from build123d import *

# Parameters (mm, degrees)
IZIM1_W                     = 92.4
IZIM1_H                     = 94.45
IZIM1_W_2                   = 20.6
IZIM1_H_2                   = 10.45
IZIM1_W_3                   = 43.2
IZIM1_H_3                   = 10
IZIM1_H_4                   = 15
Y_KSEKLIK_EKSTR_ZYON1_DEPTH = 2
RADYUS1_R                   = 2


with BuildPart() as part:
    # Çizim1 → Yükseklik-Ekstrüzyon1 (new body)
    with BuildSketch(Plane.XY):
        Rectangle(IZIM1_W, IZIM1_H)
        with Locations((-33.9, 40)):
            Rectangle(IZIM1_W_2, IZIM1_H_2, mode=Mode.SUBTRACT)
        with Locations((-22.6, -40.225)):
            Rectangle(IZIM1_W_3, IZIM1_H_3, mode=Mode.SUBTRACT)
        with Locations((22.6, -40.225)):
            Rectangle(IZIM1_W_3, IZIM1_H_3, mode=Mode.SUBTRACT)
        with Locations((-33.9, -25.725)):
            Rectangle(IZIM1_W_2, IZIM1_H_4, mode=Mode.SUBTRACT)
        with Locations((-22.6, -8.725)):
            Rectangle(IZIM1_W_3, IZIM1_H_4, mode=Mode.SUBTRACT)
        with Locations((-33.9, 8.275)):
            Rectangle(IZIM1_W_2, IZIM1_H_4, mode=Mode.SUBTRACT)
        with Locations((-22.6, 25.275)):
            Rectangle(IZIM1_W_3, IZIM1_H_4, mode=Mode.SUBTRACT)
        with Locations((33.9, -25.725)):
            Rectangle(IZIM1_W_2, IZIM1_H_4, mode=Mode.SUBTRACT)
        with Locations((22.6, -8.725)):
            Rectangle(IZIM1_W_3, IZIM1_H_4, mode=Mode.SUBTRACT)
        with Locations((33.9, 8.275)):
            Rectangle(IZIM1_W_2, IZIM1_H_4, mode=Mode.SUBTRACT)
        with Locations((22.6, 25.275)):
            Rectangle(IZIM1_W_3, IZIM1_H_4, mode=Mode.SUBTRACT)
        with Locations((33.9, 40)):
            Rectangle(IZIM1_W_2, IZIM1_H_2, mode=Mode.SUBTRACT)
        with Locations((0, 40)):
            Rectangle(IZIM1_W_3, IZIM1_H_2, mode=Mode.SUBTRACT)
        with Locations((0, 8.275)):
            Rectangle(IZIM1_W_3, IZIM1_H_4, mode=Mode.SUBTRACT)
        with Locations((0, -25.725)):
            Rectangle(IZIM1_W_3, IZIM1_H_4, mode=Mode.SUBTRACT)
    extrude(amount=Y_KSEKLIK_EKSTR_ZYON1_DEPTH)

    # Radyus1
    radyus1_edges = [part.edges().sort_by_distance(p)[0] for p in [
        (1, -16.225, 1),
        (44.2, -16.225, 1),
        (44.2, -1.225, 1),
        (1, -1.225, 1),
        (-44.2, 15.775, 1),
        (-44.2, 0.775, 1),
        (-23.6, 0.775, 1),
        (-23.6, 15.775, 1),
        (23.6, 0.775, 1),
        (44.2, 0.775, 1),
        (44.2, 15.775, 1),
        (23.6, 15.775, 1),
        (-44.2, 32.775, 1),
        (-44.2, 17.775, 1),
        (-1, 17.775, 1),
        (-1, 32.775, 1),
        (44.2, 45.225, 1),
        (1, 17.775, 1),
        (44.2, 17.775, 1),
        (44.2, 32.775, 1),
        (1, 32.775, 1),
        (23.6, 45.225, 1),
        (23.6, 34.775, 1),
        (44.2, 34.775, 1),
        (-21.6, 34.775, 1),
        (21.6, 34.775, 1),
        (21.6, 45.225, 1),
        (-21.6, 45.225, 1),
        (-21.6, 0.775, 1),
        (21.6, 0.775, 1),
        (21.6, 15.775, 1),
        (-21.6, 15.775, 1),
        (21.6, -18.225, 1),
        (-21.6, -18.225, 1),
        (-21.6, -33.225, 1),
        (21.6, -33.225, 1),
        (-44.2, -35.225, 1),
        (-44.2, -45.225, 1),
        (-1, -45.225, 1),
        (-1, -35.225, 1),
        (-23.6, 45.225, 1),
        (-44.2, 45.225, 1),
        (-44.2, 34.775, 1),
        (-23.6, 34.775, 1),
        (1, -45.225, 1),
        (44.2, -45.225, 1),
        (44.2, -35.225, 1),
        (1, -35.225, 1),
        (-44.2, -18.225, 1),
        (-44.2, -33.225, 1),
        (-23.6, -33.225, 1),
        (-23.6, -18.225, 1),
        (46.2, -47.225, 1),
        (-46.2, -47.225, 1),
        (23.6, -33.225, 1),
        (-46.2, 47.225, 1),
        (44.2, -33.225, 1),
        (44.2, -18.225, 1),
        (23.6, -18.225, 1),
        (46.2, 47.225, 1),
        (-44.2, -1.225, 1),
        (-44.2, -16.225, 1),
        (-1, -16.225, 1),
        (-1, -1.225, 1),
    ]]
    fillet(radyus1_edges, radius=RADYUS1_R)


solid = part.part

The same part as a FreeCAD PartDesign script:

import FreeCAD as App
import Part
import Sketcher


def edges_at(feature, points):
    """Names of the edges that pass closest to the given points."""
    edges = feature.Shape.Edges
    near = lambda p: min(range(len(edges)), key=lambda i: edges[i].distToShape(Part.Vertex(*p))[0])
    return sorted({f"Edge{near(p) + 1}" for p in points})

doc = App.newDocument("Part")
body = doc.addObject("PartDesign::Body", "Body")

# Sketch on XY plane
sketch1 = body.newObject("Sketcher::SketchObject", "Sketch")
sketch1.AttachmentSupport = (doc.getObject("XY_Plane"), [""])
sketch1.MapMode = "FlatFace"
sketch1.addGeometry([
    Part.LineSegment(App.Vector(-46, 47, 0), App.Vector(-46, -47, 0)),  # 0
    Part.LineSegment(App.Vector(-46, -47, 0), App.Vector(46, -47, 0)),  # 1
    Part.LineSegment(App.Vector(46, -47, 0), App.Vector(46, 47, 0)),  # 2
    Part.LineSegment(App.Vector(46, 47, 0), App.Vector(-46, 47, 0)),  # 3
    Part.LineSegment(App.Vector(-1, -45, 0), App.Vector(-44, -45, 0)),  # 4
    Part.LineSegment(App.Vector(-44, -45, 0), App.Vector(-44, -35, 0)),  # 5
    Part.LineSegment(App.Vector(-44, -35, 0), App.Vector(-1, -35, 0)),  # 6
    Part.LineSegment(App.Vector(-1, -35, 0), App.Vector(-1, -45, 0)),  # 7
    Part.LineSegment(App.Vector(-24, -33, 0), App.Vector(-44, -33, 0)),  # 8
    Part.LineSegment(App.Vector(-44, -33, 0), App.Vector(-44, -18, 0)),  # 9
    Part.LineSegment(App.Vector(-44, -18, 0), App.Vector(-24, -18, 0)),  # 10
    Part.LineSegment(App.Vector(-24, -18, 0), App.Vector(-24, -33, 0)),  # 11
    Part.LineSegment(App.Vector(-1, -16, 0), App.Vector(-44, -16, 0)),  # 12
    Part.LineSegment(App.Vector(-44, -16, 0), App.Vector(-44, -1, 0)),  # 13
    Part.LineSegment(App.Vector(-44, -1, 0), App.Vector(-1, -1, 0)),  # 14
    Part.LineSegment(App.Vector(-1, -1, 0), App.Vector(-1, -16, 0)),  # 15
    Part.LineSegment(App.Vector(22, -33, 0), App.Vector(-22, -33, 0)),  # 16
    Part.LineSegment(App.Vector(-22, -33, 0), App.Vector(-22, -18, 0)),  # 17
    Part.LineSegment(App.Vector(-22, -18, 0), App.Vector(22, -18, 0)),  # 18
    Part.LineSegment(App.Vector(22, -18, 0), App.Vector(22, -33, 0)),  # 19
    Part.LineSegment(App.Vector(44, -45, 0), App.Vector(1, -45, 0)),  # 20
    Part.LineSegment(App.Vector(1, -45, 0), App.Vector(1, -35, 0)),  # 21
    Part.LineSegment(App.Vector(1, -35, 0), App.Vector(44, -35, 0)),  # 22
    Part.LineSegment(App.Vector(44, -35, 0), App.Vector(44, -45, 0)),  # 23
    Part.LineSegment(App.Vector(44, -33, 0), App.Vector(24, -33, 0)),  # 24
    Part.LineSegment(App.Vector(24, -33, 0), App.Vector(24, -18, 0)),  # 25
    Part.LineSegment(App.Vector(24, -18, 0), App.Vector(44, -18, 0)),  # 26
    Part.LineSegment(App.Vector(44, -18, 0), App.Vector(44, -33, 0)),  # 27
    Part.LineSegment(App.Vector(44, -16, 0), App.Vector(1, -16, 0)),  # 28
    Part.LineSegment(App.Vector(1, -16, 0), App.Vector(1, -1, 0)),  # 29
    Part.LineSegment(App.Vector(1, -1, 0), App.Vector(44, -1, 0)),  # 30
    Part.LineSegment(App.Vector(44, -1, 0), App.Vector(44, -16, 0)),  # 31
    Part.LineSegment(App.Vector(-24, 1, 0), App.Vector(-44, 1, 0)),  # 32
    Part.LineSegment(App.Vector(-44, 1, 0), App.Vector(-44, 16, 0)),  # 33
    Part.LineSegment(App.Vector(-44, 16, 0), App.Vector(-24, 16, 0)),  # 34
    Part.LineSegment(App.Vector(-24, 16, 0), App.Vector(-24, 1, 0)),  # 35
    Part.LineSegment(App.Vector(-1, 18, 0), App.Vector(-44, 18, 0)),  # 36
    Part.LineSegment(App.Vector(-44, 18, 0), App.Vector(-44, 33, 0)),  # 37
    Part.LineSegment(App.Vector(-44, 33, 0), App.Vector(-1, 33, 0)),  # 38
    Part.LineSegment(App.Vector(-1, 33, 0), App.Vector(-1, 18, 0)),  # 39
    Part.LineSegment(App.Vector(-24, 35, 0), App.Vector(-44, 35, 0)),  # 40
    Part.LineSegment(App.Vector(-44, 35, 0), App.Vector(-44, 45, 0)),  # 41
    Part.LineSegment(App.Vector(-44, 45, 0), App.Vector(-24, 45, 0)),  # 42
    Part.LineSegment(App.Vector(-24, 45, 0), App.Vector(-24, 35, 0)),  # 43
    Part.LineSegment(App.Vector(22, 1, 0), App.Vector(-22, 1, 0)),  # 44
    Part.LineSegment(App.Vector(-22, 1, 0), App.Vector(-22, 16, 0)),  # 45
    Part.LineSegment(App.Vector(-22, 16, 0), App.Vector(22, 16, 0)),  # 46
    Part.LineSegment(App.Vector(22, 16, 0), App.Vector(22, 1, 0)),  # 47
    Part.LineSegment(App.Vector(44, 1, 0), App.Vector(24, 1, 0)),  # 48
    Part.LineSegment(App.Vector(24, 1, 0), App.Vector(24, 16, 0)),  # 49
    Part.LineSegment(App.Vector(24, 16, 0), App.Vector(44, 16, 0)),  # 50
    Part.LineSegment(App.Vector(44, 16, 0), App.Vector(44, 1, 0)),  # 51
    Part.LineSegment(App.Vector(22, 35, 0), App.Vector(-22, 35, 0)),  # 52
    Part.LineSegment(App.Vector(-22, 35, 0), App.Vector(-22, 45, 0)),  # 53
    Part.LineSegment(App.Vector(-22, 45, 0), App.Vector(22, 45, 0)),  # 54
    Part.LineSegment(App.Vector(22, 45, 0), App.Vector(22, 35, 0)),  # 55
    Part.LineSegment(App.Vector(44, 18, 0), App.Vector(1, 18, 0)),  # 56
    Part.LineSegment(App.Vector(1, 18, 0), App.Vector(1, 33, 0)),  # 57
    Part.LineSegment(App.Vector(1, 33, 0), App.Vector(44, 33, 0)),  # 58
    Part.LineSegment(App.Vector(44, 33, 0), App.Vector(44, 18, 0)),  # 59
    Part.LineSegment(App.Vector(44, 35, 0), App.Vector(24, 35, 0)),  # 60
    Part.LineSegment(App.Vector(24, 35, 0), App.Vector(24, 45, 0)),  # 61
    Part.LineSegment(App.Vector(24, 45, 0), App.Vector(44, 45, 0)),  # 62
    Part.LineSegment(App.Vector(44, 45, 0), App.Vector(44, 35, 0)),  # 63
], False)
sketch1.addConstraint([
    Sketcher.Constraint("Coincident", 0, 2, 1, 1),
    Sketcher.Constraint("Coincident", 1, 2, 2, 1),
    Sketcher.Constraint("Coincident", 2, 2, 3, 1),
    Sketcher.Constraint("Coincident", 3, 2, 0, 1),
    Sketcher.Constraint("Coincident", 4, 2, 5, 1),
    Sketcher.Constraint("Coincident", 5, 2, 6, 1),
    Sketcher.Constraint("Coincident", 6, 2, 7, 1),
    Sketcher.Constraint("Coincident", 7, 2, 4, 1),
    Sketcher.Constraint("Coincident", 8, 2, 9, 1),
    Sketcher.Constraint("Coincident", 9, 2, 10, 1),
    Sketcher.Constraint("Coincident", 10, 2, 11, 1),
    Sketcher.Constraint("Coincident", 11, 2, 8, 1),
    Sketcher.Constraint("Coincident", 12, 2, 13, 1),
    Sketcher.Constraint("Coincident", 13, 2, 14, 1),
    Sketcher.Constraint("Coincident", 14, 2, 15, 1),
    Sketcher.Constraint("Coincident", 15, 2, 12, 1),
    Sketcher.Constraint("Coincident", 16, 2, 17, 1),
    Sketcher.Constraint("Coincident", 17, 2, 18, 1),
    Sketcher.Constraint("Coincident", 18, 2, 19, 1),
    Sketcher.Constraint("Coincident", 19, 2, 16, 1),
    Sketcher.Constraint("Coincident", 20, 2, 21, 1),
    Sketcher.Constraint("Coincident", 21, 2, 22, 1),
    Sketcher.Constraint("Coincident", 22, 2, 23, 1),
    Sketcher.Constraint("Coincident", 23, 2, 20, 1),
    Sketcher.Constraint("Coincident", 24, 2, 25, 1),
    Sketcher.Constraint("Coincident", 25, 2, 26, 1),
    Sketcher.Constraint("Coincident", 26, 2, 27, 1),
    Sketcher.Constraint("Coincident", 27, 2, 24, 1),
    Sketcher.Constraint("Coincident", 28, 2, 29, 1),
    Sketcher.Constraint("Coincident", 29, 2, 30, 1),
    Sketcher.Constraint("Coincident", 30, 2, 31, 1),
    Sketcher.Constraint("Coincident", 31, 2, 28, 1),
    Sketcher.Constraint("Coincident", 32, 2, 33, 1),
    Sketcher.Constraint("Coincident", 33, 2, 34, 1),
    Sketcher.Constraint("Coincident", 34, 2, 35, 1),
    Sketcher.Constraint("Coincident", 35, 2, 32, 1),
    Sketcher.Constraint("Coincident", 36, 2, 37, 1),
    Sketcher.Constraint("Coincident", 37, 2, 38, 1),
    Sketcher.Constraint("Coincident", 38, 2, 39, 1),
    Sketcher.Constraint("Coincident", 39, 2, 36, 1),
    Sketcher.Constraint("Coincident", 40, 2, 41, 1),
    Sketcher.Constraint("Coincident", 41, 2, 42, 1),
    Sketcher.Constraint("Coincident", 42, 2, 43, 1),
    Sketcher.Constraint("Coincident", 43, 2, 40, 1),
    Sketcher.Constraint("Coincident", 44, 2, 45, 1),
    Sketcher.Constraint("Coincident", 45, 2, 46, 1),
    Sketcher.Constraint("Coincident", 46, 2, 47, 1),
    Sketcher.Constraint("Coincident", 47, 2, 44, 1),
    Sketcher.Constraint("Coincident", 48, 2, 49, 1),
    Sketcher.Constraint("Coincident", 49, 2, 50, 1),
    Sketcher.Constraint("Coincident", 50, 2, 51, 1),
    Sketcher.Constraint("Coincident", 51, 2, 48, 1),
    Sketcher.Constraint("Coincident", 52, 2, 53, 1),
    Sketcher.Constraint("Coincident", 53, 2, 54, 1),
    Sketcher.Constraint("Coincident", 54, 2, 55, 1),
    Sketcher.Constraint("Coincident", 55, 2, 52, 1),
    Sketcher.Constraint("Coincident", 56, 2, 57, 1),
    Sketcher.Constraint("Coincident", 57, 2, 58, 1),
    Sketcher.Constraint("Coincident", 58, 2, 59, 1),
    Sketcher.Constraint("Coincident", 59, 2, 56, 1),
    Sketcher.Constraint("Coincident", 60, 2, 61, 1),
    Sketcher.Constraint("Coincident", 61, 2, 62, 1),
    Sketcher.Constraint("Coincident", 62, 2, 63, 1),
    Sketcher.Constraint("Coincident", 63, 2, 60, 1),
    Sketcher.Constraint("Vertical", 0),
    Sketcher.Constraint("Horizontal", 1),
    Sketcher.Constraint("Vertical", 2),
    Sketcher.Constraint("Horizontal", 3),
    Sketcher.Constraint("Horizontal", 4),
    Sketcher.Constraint("Vertical", 5),
    Sketcher.Constraint("Horizontal", 6),
    Sketcher.Constraint("Vertical", 7),
    Sketcher.Constraint("Horizontal", 8),
    Sketcher.Constraint("Vertical", 9),
    Sketcher.Constraint("Horizontal", 10),
    Sketcher.Constraint("Vertical", 11),
    Sketcher.Constraint("Horizontal", 12),
    Sketcher.Constraint("Vertical", 13),
    Sketcher.Constraint("Horizontal", 14),
    Sketcher.Constraint("Vertical", 15),
    Sketcher.Constraint("Horizontal", 16),
    Sketcher.Constraint("Vertical", 17),
    Sketcher.Constraint("Horizontal", 18),
    Sketcher.Constraint("Vertical", 19),
    Sketcher.Constraint("Horizontal", 20),
    Sketcher.Constraint("Vertical", 21),
    Sketcher.Constraint("Horizontal", 22),
    Sketcher.Constraint("Vertical", 23),
    Sketcher.Constraint("Horizontal", 24),
    Sketcher.Constraint("Vertical", 25),
    Sketcher.Constraint("Horizontal", 26),
    Sketcher.Constraint("Vertical", 27),
    Sketcher.Constraint("Horizontal", 28),
    Sketcher.Constraint("Vertical", 29),
    Sketcher.Constraint("Horizontal", 30),
    Sketcher.Constraint("Vertical", 31),
    Sketcher.Constraint("Horizontal", 32),
    Sketcher.Constraint("Vertical", 33),
    Sketcher.Constraint("Horizontal", 34),
    Sketcher.Constraint("Vertical", 35),
    Sketcher.Constraint("Horizontal", 36),
    Sketcher.Constraint("Vertical", 37),
    Sketcher.Constraint("Horizontal", 38),
    Sketcher.Constraint("Vertical", 39),
    Sketcher.Constraint("Horizontal", 40),
    Sketcher.Constraint("Vertical", 41),
    Sketcher.Constraint("Horizontal", 42),
    Sketcher.Constraint("Vertical", 43),
    Sketcher.Constraint("Horizontal", 44),
    Sketcher.Constraint("Vertical", 45),
    Sketcher.Constraint("Horizontal", 46),
    Sketcher.Constraint("Vertical", 47),
    Sketcher.Constraint("Horizontal", 48),
    Sketcher.Constraint("Vertical", 49),
    Sketcher.Constraint("Horizontal", 50),
    Sketcher.Constraint("Vertical", 51),
    Sketcher.Constraint("Horizontal", 52),
    Sketcher.Constraint("Vertical", 53),
    Sketcher.Constraint("Horizontal", 54),
    Sketcher.Constraint("Vertical", 55),
    Sketcher.Constraint("Horizontal", 56),
    Sketcher.Constraint("Vertical", 57),
    Sketcher.Constraint("Horizontal", 58),
    Sketcher.Constraint("Vertical", 59),
    Sketcher.Constraint("Horizontal", 60),
    Sketcher.Constraint("Vertical", 61),
    Sketcher.Constraint("Horizontal", 62),
    Sketcher.Constraint("Vertical", 63),
    Sketcher.Constraint("Symmetric", 0, 2, 2, 2, -1, 1),
    Sketcher.Constraint("Symmetric", 23, 2, 41, 2, -1, 1),
    Sketcher.Constraint("Symmetric", 4, 2, 62, 2, -1, 1),
    Sketcher.Constraint("Symmetric", 7, 2, 20, 2, -2),
    Sketcher.Constraint("Symmetric", 5, 2, 22, 2, -2),
    Sketcher.Constraint("Symmetric", 11, 2, 24, 2, -2),
    Sketcher.Constraint("Symmetric", 9, 2, 26, 2, -2),
    Sketcher.Constraint("Symmetric", 15, 2, 28, 2, -2),
    Sketcher.Constraint("Symmetric", 13, 2, 30, 2, -2),
    Sketcher.Constraint("Symmetric", 35, 2, 48, 2, -2),
    Sketcher.Constraint("Symmetric", 33, 2, 50, 2, -2),
    Sketcher.Constraint("Symmetric", 39, 2, 56, 2, -2),
    Sketcher.Constraint("Symmetric", 37, 2, 58, 2, -2),
    Sketcher.Constraint("Symmetric", 43, 2, 60, 2, -2),
    Sketcher.Constraint("Horizontal", 11, 2, 16, 2),
    Sketcher.Constraint("Horizontal", 10, 2, 17, 2),
    Sketcher.Constraint("Horizontal", 35, 2, 44, 2),
    Sketcher.Constraint("Horizontal", 34, 2, 45, 2),
    Sketcher.Constraint("Horizontal", 43, 2, 52, 2),
    Sketcher.Constraint("Horizontal", 42, 2, 53, 2),
    Sketcher.Constraint("Vertical", 5, 2, 8, 2),
    Sketcher.Constraint("Vertical", 9, 2, 12, 2),
    Sketcher.Constraint("Vertical", 7, 2, 14, 2),
    Sketcher.Constraint("Vertical", 13, 2, 32, 2),
    Sketcher.Constraint("Vertical", 11, 2, 34, 2),
    Sketcher.Constraint("Vertical", 33, 2, 36, 2),
    Sketcher.Constraint("Vertical", 15, 2, 38, 2),
    Sketcher.Constraint("Vertical", 35, 2, 42, 2),
    Sketcher.Constraint("Vertical", 17, 2, 44, 2),
    Sketcher.Constraint("Vertical", 19, 2, 46, 2),
    Sketcher.Constraint("Vertical", 45, 2, 52, 2),
    Sketcher.Constraint("Vertical", 47, 2, 54, 2),
    Sketcher.Constraint("Equal", 14, 16),
    Sketcher.Constraint("Equal", 11, 13),
    Sketcher.Constraint("Equal", 31, 33),
    Sketcher.Constraint("Equal", 35, 37),
    Sketcher.Constraint("DistanceY", 5, 1, 5, 2, 10.0),
    Sketcher.Constraint("DistanceY", 9, 1, 9, 2, 15.0),
    Sketcher.Constraint("DistanceX", 1, 1, 1, 2, 92.4),
    Sketcher.Constraint("DistanceX", 4, 2, 4, 1, 43.2),
    Sketcher.Constraint("DistanceX", 8, 2, 8, 1, 20.6),
    Sketcher.Constraint("DistanceX", 6, 2, -1, 1, 1.0),
    Sketcher.Constraint("DistanceY", 0, 2, 0, 1, 94.45),
    Sketcher.Constraint("DistanceY", 41, 1, 41, 2, 10.45),
    Sketcher.Constraint("DistanceX", 16, 2, -1, 1, 21.6),
    Sketcher.Constraint("DistanceY", 4, 2, -1, 1, 45.225),
    Sketcher.Constraint("DistanceY", 8, 2, -1, 1, 33.225),
    Sketcher.Constraint("DistanceY", 12, 2, -1, 1, 16.225),
    Sketcher.Constraint("DistanceY", -1, 1, 32, 2, 0.775),
    Sketcher.Constraint("DistanceY", -1, 1, 36, 2, 17.775),
])
pad1 = body.newObject("PartDesign::Pad", "Pad")
pad1.Profile = sketch1
pad1.Length = 2
doc.recompute()

fillet = body.newObject("PartDesign::Fillet", "Fillet")
fillet.Base = (pad1, edges_at(pad1, [
    (1, -16.225, 1),
    (44.2, -16.225, 1),
    (44.2, -1.225, 1),
    (1, -1.225, 1),
    (-44.2, 15.775, 1),
    (-44.2, 0.775, 1),
    (-23.6, 0.775, 1),
    (-23.6, 15.775, 1),
    (23.6, 0.775, 1),
    (44.2, 0.775, 1),
    (44.2, 15.775, 1),
    (23.6, 15.775, 1),
    (-44.2, 32.775, 1),
    (-44.2, 17.775, 1),
    (-1, 17.775, 1),
    (-1, 32.775, 1),
    (44.2, 45.225, 1),
    (1, 17.775, 1),
    (44.2, 17.775, 1),
    (44.2, 32.775, 1),
    (1, 32.775, 1),
    (23.6, 45.225, 1),
    (23.6, 34.775, 1),
    (44.2, 34.775, 1),
    (-21.6, 34.775, 1),
    (21.6, 34.775, 1),
    (21.6, 45.225, 1),
    (-21.6, 45.225, 1),
    (-21.6, 0.775, 1),
    (21.6, 0.775, 1),
    (21.6, 15.775, 1),
    (-21.6, 15.775, 1),
    (21.6, -18.225, 1),
    (-21.6, -18.225, 1),
    (-21.6, -33.225, 1),
    (21.6, -33.225, 1),
    (-44.2, -35.225, 1),
    (-44.2, -45.225, 1),
    (-1, -45.225, 1),
    (-1, -35.225, 1),
    (-23.6, 45.225, 1),
    (-44.2, 45.225, 1),
    (-44.2, 34.775, 1),
    (-23.6, 34.775, 1),
    (1, -45.225, 1),
    (44.2, -45.225, 1),
    (44.2, -35.225, 1),
    (1, -35.225, 1),
    (-44.2, -18.225, 1),
    (-44.2, -33.225, 1),
    (-23.6, -33.225, 1),
    (-23.6, -18.225, 1),
    (46.2, -47.225, 1),
    (-46.2, -47.225, 1),
    (23.6, -33.225, 1),
    (-46.2, 47.225, 1),
    (44.2, -33.225, 1),
    (44.2, -18.225, 1),
    (23.6, -18.225, 1),
    (46.2, 47.225, 1),
    (-44.2, -1.225, 1),
    (-44.2, -16.225, 1),
    (-1, -16.225, 1),
    (-1, -1.225, 1),
]))
fillet.Radius = 2

doc.recompute()
